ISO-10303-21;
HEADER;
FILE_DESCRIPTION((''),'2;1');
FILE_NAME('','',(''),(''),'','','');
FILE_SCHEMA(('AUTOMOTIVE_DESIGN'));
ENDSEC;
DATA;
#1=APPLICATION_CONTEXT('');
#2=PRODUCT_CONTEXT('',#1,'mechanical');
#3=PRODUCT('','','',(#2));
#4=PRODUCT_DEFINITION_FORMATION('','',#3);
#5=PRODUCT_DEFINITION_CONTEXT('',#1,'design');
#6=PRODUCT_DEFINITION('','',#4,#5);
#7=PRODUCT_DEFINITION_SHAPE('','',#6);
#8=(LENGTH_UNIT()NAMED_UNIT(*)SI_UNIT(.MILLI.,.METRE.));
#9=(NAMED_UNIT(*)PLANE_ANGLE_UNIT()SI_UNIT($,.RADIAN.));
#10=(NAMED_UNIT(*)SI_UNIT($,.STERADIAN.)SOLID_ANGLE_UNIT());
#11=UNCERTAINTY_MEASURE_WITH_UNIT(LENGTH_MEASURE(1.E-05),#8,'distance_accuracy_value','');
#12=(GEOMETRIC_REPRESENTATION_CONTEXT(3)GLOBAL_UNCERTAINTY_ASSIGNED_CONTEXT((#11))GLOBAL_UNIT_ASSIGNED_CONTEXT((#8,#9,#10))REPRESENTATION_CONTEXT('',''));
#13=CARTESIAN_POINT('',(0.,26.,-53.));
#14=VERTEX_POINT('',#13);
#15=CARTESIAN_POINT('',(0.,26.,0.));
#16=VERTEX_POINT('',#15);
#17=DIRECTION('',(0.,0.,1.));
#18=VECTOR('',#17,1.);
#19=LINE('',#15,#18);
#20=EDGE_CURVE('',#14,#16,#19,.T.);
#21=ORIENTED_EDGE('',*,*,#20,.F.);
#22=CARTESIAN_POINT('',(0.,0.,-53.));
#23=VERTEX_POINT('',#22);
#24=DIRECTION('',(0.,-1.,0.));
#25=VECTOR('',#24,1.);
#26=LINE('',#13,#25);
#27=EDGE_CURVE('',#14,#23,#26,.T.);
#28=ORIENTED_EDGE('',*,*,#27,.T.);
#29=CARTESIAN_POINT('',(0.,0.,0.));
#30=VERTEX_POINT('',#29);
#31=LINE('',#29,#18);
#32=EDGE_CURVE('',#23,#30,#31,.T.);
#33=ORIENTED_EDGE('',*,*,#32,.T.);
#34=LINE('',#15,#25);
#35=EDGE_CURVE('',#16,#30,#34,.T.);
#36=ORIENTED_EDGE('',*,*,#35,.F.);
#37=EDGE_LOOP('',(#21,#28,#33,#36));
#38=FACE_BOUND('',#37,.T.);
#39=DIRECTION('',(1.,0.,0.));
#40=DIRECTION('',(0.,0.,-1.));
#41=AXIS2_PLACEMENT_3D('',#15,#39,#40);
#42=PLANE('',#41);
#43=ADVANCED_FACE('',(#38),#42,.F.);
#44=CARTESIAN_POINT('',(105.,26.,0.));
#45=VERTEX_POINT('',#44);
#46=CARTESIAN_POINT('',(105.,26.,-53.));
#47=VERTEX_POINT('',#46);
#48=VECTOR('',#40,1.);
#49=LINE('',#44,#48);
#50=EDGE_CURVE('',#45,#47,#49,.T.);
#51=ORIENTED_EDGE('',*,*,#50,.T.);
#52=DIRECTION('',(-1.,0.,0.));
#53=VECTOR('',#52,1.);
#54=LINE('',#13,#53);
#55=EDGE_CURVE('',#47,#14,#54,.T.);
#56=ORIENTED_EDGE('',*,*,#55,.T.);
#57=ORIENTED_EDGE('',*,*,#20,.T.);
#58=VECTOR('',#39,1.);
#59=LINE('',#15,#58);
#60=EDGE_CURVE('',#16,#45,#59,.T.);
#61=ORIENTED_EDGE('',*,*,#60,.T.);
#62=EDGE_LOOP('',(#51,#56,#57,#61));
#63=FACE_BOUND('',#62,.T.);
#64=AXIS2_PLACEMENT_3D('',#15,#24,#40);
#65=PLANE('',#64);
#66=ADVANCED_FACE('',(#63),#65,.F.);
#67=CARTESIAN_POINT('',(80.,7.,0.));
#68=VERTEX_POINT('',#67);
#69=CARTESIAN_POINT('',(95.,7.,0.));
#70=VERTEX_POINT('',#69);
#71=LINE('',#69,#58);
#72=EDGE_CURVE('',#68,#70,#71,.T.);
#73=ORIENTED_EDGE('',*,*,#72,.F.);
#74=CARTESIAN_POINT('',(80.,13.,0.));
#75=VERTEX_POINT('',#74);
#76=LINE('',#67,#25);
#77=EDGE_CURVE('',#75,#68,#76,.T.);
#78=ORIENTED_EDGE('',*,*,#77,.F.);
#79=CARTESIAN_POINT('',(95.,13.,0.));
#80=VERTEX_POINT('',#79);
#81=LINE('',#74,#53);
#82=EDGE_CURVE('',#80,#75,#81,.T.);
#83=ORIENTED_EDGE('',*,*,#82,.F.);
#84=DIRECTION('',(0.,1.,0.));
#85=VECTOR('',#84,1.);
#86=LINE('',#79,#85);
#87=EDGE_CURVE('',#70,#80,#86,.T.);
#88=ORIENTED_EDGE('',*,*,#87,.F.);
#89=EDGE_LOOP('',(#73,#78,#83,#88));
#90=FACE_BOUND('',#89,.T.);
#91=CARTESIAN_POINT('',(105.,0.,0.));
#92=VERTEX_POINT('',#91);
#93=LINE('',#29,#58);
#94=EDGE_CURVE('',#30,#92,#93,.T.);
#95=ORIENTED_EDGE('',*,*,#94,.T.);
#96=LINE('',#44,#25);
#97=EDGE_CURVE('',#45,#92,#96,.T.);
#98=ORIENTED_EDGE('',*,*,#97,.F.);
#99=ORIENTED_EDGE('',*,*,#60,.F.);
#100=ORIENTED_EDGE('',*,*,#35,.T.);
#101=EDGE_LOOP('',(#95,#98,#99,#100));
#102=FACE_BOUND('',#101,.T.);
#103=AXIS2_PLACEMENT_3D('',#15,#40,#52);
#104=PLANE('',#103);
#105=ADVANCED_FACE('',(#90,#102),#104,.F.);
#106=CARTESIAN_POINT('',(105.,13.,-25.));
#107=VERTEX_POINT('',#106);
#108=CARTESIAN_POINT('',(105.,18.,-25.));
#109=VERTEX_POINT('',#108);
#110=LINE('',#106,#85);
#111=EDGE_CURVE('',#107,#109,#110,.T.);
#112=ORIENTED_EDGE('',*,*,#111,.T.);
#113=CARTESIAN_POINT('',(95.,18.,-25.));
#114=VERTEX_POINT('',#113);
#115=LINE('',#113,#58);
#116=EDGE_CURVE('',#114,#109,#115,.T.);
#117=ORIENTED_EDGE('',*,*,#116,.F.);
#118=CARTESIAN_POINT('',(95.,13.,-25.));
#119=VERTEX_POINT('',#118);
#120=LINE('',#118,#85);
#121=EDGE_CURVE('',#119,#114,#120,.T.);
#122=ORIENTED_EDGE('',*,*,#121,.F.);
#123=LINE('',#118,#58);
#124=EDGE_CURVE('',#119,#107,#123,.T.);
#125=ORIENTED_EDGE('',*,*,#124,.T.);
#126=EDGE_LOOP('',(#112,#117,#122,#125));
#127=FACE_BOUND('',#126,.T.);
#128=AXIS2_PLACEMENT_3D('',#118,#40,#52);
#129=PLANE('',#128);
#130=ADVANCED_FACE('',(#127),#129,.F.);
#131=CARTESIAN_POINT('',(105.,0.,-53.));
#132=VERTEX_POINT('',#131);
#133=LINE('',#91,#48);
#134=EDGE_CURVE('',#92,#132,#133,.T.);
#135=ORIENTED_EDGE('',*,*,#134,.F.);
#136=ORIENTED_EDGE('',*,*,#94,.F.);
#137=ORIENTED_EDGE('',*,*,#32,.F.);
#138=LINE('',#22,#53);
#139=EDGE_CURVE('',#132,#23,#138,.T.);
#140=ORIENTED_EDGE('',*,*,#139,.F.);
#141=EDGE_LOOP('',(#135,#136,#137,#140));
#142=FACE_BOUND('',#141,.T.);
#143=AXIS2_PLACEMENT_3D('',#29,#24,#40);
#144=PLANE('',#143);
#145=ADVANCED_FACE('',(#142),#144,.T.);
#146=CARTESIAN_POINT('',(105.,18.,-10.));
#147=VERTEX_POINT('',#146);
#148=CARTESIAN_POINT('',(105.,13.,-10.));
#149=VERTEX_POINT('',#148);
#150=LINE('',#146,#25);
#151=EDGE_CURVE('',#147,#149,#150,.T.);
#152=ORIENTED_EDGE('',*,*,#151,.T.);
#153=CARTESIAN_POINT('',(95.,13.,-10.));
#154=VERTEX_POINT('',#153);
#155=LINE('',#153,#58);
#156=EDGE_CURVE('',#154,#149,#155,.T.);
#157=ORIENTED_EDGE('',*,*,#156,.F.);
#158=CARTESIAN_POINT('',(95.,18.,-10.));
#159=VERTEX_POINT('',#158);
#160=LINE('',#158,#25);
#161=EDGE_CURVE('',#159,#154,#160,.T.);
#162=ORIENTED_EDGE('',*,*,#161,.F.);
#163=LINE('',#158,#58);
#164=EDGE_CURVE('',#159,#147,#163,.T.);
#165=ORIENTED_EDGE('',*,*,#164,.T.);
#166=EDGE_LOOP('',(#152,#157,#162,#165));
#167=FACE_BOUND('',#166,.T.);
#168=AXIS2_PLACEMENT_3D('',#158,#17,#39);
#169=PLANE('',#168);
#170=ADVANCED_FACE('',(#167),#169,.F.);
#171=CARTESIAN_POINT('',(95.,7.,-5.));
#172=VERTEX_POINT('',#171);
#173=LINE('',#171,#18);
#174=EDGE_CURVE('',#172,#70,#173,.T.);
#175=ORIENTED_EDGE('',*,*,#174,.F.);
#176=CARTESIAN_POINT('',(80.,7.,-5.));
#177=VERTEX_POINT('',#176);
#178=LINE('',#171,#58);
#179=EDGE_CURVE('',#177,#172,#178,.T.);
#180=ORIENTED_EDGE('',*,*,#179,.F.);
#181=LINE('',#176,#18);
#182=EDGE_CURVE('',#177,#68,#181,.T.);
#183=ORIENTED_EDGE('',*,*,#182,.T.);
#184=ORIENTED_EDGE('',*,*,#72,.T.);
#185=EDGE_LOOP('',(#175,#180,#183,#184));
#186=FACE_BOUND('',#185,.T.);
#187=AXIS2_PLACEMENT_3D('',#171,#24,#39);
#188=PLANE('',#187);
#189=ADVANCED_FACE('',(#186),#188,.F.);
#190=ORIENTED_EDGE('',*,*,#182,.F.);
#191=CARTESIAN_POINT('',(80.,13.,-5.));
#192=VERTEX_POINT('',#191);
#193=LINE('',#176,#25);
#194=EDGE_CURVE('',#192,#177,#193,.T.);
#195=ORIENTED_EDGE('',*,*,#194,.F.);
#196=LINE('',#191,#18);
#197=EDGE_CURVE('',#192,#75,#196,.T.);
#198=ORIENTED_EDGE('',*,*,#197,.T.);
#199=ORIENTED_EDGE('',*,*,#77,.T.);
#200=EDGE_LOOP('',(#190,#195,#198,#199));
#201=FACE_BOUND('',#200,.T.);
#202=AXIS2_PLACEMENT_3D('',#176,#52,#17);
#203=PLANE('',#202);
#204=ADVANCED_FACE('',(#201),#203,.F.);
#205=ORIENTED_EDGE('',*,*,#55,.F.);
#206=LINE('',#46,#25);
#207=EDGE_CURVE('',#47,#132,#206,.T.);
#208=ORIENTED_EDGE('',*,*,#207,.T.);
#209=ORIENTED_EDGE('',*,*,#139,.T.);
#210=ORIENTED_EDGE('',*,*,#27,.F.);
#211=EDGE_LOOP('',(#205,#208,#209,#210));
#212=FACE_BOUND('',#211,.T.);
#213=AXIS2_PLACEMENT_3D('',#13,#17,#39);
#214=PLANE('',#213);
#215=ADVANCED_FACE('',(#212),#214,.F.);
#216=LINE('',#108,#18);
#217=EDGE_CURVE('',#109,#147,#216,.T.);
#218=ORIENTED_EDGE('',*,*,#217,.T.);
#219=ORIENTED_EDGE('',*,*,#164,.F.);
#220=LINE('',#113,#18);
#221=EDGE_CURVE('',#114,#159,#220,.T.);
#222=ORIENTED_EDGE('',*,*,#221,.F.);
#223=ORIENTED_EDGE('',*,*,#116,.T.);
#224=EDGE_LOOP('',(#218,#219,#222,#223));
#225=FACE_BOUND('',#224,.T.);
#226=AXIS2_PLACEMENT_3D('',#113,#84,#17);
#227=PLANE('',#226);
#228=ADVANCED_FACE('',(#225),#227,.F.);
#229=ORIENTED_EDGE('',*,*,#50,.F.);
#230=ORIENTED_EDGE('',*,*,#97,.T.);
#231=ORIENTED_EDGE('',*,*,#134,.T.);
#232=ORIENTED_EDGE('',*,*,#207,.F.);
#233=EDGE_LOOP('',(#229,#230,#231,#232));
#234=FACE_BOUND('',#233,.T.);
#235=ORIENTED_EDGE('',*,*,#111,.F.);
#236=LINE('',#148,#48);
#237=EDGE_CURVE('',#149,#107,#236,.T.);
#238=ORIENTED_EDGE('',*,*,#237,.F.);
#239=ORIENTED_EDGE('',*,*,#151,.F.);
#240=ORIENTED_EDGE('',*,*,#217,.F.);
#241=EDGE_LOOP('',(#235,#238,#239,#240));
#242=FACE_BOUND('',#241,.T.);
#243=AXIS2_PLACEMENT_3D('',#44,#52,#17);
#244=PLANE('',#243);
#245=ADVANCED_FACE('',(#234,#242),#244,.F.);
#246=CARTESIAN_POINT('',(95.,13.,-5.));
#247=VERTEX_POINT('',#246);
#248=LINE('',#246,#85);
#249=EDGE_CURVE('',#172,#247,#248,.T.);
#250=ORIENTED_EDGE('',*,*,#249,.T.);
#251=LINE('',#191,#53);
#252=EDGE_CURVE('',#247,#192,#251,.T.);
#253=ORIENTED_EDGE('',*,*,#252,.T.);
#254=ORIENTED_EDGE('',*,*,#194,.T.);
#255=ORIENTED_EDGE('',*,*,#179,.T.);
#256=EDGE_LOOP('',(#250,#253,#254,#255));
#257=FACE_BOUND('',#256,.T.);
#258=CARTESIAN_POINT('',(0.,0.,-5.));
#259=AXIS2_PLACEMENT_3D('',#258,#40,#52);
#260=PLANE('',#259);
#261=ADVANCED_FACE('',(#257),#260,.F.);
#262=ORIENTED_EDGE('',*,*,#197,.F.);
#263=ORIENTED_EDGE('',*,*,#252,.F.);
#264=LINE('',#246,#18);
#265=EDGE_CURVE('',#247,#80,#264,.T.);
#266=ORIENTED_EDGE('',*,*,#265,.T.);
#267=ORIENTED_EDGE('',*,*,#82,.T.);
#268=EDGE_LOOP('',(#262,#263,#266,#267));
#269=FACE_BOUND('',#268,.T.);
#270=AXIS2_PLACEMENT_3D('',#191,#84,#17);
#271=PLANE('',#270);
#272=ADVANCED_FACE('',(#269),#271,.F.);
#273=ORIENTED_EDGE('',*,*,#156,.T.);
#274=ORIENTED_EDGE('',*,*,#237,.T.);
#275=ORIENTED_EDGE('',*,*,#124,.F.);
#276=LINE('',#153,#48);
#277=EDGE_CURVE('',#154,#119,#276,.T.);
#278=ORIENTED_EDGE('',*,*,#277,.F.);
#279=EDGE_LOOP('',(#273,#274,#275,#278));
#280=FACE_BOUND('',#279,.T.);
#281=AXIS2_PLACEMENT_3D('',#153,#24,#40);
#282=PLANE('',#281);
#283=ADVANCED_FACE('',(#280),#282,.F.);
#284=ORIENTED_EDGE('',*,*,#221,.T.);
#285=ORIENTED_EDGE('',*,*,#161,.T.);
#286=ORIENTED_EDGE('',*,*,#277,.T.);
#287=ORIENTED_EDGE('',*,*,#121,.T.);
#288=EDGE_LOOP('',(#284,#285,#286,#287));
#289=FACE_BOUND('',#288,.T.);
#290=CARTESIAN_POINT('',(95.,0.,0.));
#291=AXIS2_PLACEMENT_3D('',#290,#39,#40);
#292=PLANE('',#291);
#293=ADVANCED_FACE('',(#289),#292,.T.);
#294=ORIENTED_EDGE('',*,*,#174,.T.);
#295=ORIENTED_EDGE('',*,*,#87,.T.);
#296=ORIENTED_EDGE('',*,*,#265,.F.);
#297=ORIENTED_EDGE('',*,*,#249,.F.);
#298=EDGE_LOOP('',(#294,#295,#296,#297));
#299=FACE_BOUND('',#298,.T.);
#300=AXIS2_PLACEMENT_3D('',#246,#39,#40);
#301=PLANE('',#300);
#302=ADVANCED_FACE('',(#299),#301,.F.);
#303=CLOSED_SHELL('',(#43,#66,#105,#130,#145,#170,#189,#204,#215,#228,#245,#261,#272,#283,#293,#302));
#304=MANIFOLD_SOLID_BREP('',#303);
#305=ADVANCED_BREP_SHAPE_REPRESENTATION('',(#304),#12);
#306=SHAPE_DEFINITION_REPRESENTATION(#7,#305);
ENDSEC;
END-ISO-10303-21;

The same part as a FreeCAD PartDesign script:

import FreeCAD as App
import Part
import Sketcher

V = App.Vector
Q = App.Units.Quantity

doc = App.newDocument("Part")
body = doc.addObject("PartDesign::Body", "Body")

# Sketch on XZ plane
sketch1 = doc.addObject("Sketcher::SketchObject", "Sketch")
body.addObject(sketch1)
sketch1.AttachmentSupport = (doc.XZ_Plane, [""])
sketch1.MapMode = "FlatFace"
sketch1.addGeometry(Part.LineSegment(V(0, -53, 0), V(0, 0, 0)), False)
sketch1.addGeometry(Part.LineSegment(V(0, 0, 0), V(105, 0, 0)), False)
sketch1.addGeometry(Part.LineSegment(V(105, 0, 0), V(105, -53, 0)), False)
sketch1.addGeometry(Part.LineSegment(V(105, -53, 0), V(0, -53, 0)), False)
sketch1.addConstraint(Sketcher.Constraint("Coincident", 0, 2, 1, 1))
sketch1.addConstraint(Sketcher.Constraint("Coincident", 1, 2, 2, 1))
sketch1.addConstraint(Sketcher.Constraint("Coincident", 2, 2, 3, 1))
sketch1.addConstraint(Sketcher.Constraint("Coincident", 3, 2, 0, 1))
sketch1.addConstraint(Sketcher.Constraint("Vertical", 0))
sketch1.addConstraint(Sketcher.Constraint("Horizontal", 1))
sketch1.addConstraint(Sketcher.Constraint("Vertical", 2))
sketch1.addConstraint(Sketcher.Constraint("Horizontal", 3))
sketch1.addConstraint(Sketcher.Constraint("Coincident", 0, 2, -1, 1))
sketch1.addConstraint(Sketcher.Constraint("DistanceX", 1, 1, 1, 2, Q("105 mm")))
sketch1.addConstraint(Sketcher.Constraint("DistanceY", 0, 1, 0, 2, Q("53 mm")))
pad1 = doc.addObject("PartDesign::Pad", "Pad")
body.addObject(pad1)
pad1.Profile = sketch1
pad1.Length = 26
pad1.Reversed = True

# Sketch on XY plane
sketch2 = doc.addObject("Sketcher::SketchObject", "Sketch001")
body.addObject(sketch2)
sketch2.AttachmentSupport = (doc.XY_Plane, [""])
sketch2.MapMode = "FlatFace"
sketch2.addGeometry(Part.LineSegment(V(80, 13, 0), V(80, 7, 0)), False)
sketch2.addGeometry(Part.LineSegment(V(80, 7, 0), V(95, 7, 0)), False)
sketch2.addGeometry(Part.LineSegment(V(95, 7, 0), V(95, 13, 0)), False)
sketch2.addGeometry(Part.LineSegment(V(95, 13, 0), V(80, 13, 0)), False)
sketch2.addConstraint(Sketcher.Constraint("Coincident", 0, 2, 1, 1))
sketch2.addConstraint(Sketcher.Constraint("Coincident", 1, 2, 2, 1))
sketch2.addConstraint(Sketcher.Constraint("Coincident", 2, 2, 3, 1))
sketch2.addConstraint(Sketcher.Constraint("Coincident", 3, 2, 0, 1))
sketch2.addConstraint(Sketcher.Constraint("Vertical", 0))
sketch2.addConstraint(Sketcher.Constraint("Horizontal", 1))
sketch2.addConstraint(Sketcher.Constraint("Vertical", 2))
sketch2.addConstraint(Sketcher.Constraint("Horizontal", 3))
sketch2.addConstraint(Sketcher.Constraint("DistanceX", 1, 1, 1, 2, Q("15 mm")))
sketch2.addConstraint(Sketcher.Constraint("DistanceY", 0, 2, 0, 1, Q("6 mm")))
sketch2.addConstraint(Sketcher.Constraint("DistanceX", -1, 1, 0, 2, Q("80 mm")))
sketch2.addConstraint(Sketcher.Constraint("DistanceY", -1, 1, 0, 2, Q("7 mm")))
pocket1 = doc.addObject("PartDesign::Pocket", "Pocket")
body.addObject(pocket1)
pocket1.Profile = sketch2
pocket1.Length = 5

# Sketch on YZ plane
sketch3 = doc.addObject("Sketcher::SketchObject", "Sketch002")
body.addObject(sketch3)
sketch3.AttachmentSupport = (doc.YZ_Plane, [""])
sketch3.MapMode = "FlatFace"
sketch3.AttachmentOffset = App.Placement(V(0, 0, 105), App.Rotation())
sketch3.addGeometry(Part.LineSegment(V(18, -10, 0), V(13, -10, 0)), False)
sketch3.addGeometry(Part.LineSegment(V(13, -10, 0), V(13, -25, 0)), False)
sketch3.addGeometry(Part.LineSegment(V(13, -25, 0), V(18, -25, 0)), False)
sketch3.addGeometry(Part.LineSegment(V(18, -25, 0), V(18, -10, 0)), False)
sketch3.addConstraint(Sketcher.Constraint("Coincident", 0, 2, 1, 1))
sketch3.addConstraint(Sketcher.Constraint("Coincident", 1, 2, 2, 1))
sketch3.addConstraint(Sketcher.Constraint("Coincident", 2, 2, 3, 1))
sketch3.addConstraint(Sketcher.Constraint("Coincident", 3, 2, 0, 1))
sketch3.addConstraint(Sketcher.Constraint("Horizontal", 0))
sketch3.addConstraint(Sketcher.Constraint("Vertical", 1))
sketch3.addConstraint(Sketcher.Constraint("Horizontal", 2))
sketch3.addConstraint(Sketcher.Constraint("Vertical", 3))
sketch3.addConstraint(Sketcher.Constraint("DistanceX", 0, 2, 0, 1, Q("5 mm")))
sketch3.addConstraint(Sketcher.Constraint("DistanceY", 1, 2, 1, 1, Q("15 mm")))
sketch3.addConstraint(Sketcher.Constraint("DistanceX", -1, 1, 0, 2, Q("13 mm")))
sketch3.addConstraint(Sketcher.Constraint("DistanceY", 0, 2, -1, 1, Q("10 mm")))
pocket2 = doc.addObject("PartDesign::Pocket", "Pocket001")
body.addObject(pocket2)
pocket2.Profile = sketch3
pocket2.Length = 10

doc.recompute()
